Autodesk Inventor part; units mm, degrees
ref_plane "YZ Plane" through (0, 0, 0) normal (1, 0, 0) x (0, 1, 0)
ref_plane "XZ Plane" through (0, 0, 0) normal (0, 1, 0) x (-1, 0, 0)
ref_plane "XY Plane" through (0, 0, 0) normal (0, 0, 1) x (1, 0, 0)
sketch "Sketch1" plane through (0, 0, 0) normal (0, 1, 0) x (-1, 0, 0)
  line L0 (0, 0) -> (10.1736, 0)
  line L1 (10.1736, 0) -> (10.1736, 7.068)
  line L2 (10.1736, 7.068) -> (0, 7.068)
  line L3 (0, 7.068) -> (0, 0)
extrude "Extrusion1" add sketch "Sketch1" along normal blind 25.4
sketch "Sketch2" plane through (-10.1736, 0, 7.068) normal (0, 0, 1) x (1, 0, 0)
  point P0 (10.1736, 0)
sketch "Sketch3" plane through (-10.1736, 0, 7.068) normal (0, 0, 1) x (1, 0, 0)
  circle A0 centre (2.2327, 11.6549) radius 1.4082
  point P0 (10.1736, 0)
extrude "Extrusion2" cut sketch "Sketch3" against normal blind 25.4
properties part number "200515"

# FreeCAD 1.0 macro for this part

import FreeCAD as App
import Part
import Sketcher

V = App.Vector
Q = App.Units.Quantity


def add_polygon(sketch, points):
    """Adds a closed chain of lines whose ends are joined by coincident constraints."""
    first, n = sketch.GeometryCount, len(points)
    for a, b in zip(points, points[1:] + points[:1]):
        sketch.addGeometry(Part.LineSegment(App.Vector(*a, 0), App.Vector(*b, 0)), False)
    for i in range(n):
        sketch.addConstraint(Sketcher.Constraint("Coincident", first + i, 2, first + (i + 1) % n, 1))

doc = App.newDocument("Part")
body = doc.addObject("PartDesign::Body", "Body")

sketch1 = body.newObject("Sketcher::SketchObject", "Sketch")
sketch1.AttachmentSupport = (doc.getObject("XZ_Plane"), [""])
sketch1.MapMode = "FlatFace"
add_polygon(sketch1, [(0, 7), (0, 0), (-10, 0), (-10, 7)])
sketch1.addConstraint(Sketcher.Constraint("Vertical", 0))
sketch1.addConstraint(Sketcher.Constraint("Horizontal", 1))
sketch1.addConstraint(Sketcher.Constraint("Vertical", 2))
sketch1.addConstraint(Sketcher.Constraint("Horizontal", 3))
sketch1.addConstraint(Sketcher.Constraint("Coincident", 0, 2, -1, 1))
sketch1.addConstraint(Sketcher.Constraint("DistanceX", 1, 2, 1, 1, Q("10.1736 mm")))
sketch1.addConstraint(Sketcher.Constraint("DistanceY", 0, 2, 0, 1, Q("7.068 mm")))
pad1 = body.newObject("PartDesign::Pad", "Pad")
pad1.Profile = sketch1
pad1.Length = Q("1 in")
pad1.Reversed = True

sketch2 = body.newObject("Sketcher::SketchObject", "Sketch001")
sketch2.AttachmentSupport = (doc.getObject("XY_Plane"), [""])
sketch2.MapMode = "FlatFace"
sketch2.AttachmentOffset = App.Placement(V(0, 0, 7.068), App.Rotation())
sketch2.addGeometry(Part.Circle(V(-7.9, 11.7, 0), V(0, 0, 1), 1.4), False)
sketch2.addConstraint(Sketcher.Constraint("Diameter", 0, Q("2.8164 mm")))
sketch2.addConstraint(Sketcher.Constraint("DistanceX", 0, 3, -1, 1, Q("7.941 mm")))
sketch2.addConstraint(Sketcher.Constraint("DistanceY", -1, 1, 0, 3, Q("11.655 mm")))
pocket1 = body.newObject("PartDesign::Pocket", "Pocket")
pocket1.Profile = sketch2
pocket1.Length = Q("1 in")

doc.recompute()
